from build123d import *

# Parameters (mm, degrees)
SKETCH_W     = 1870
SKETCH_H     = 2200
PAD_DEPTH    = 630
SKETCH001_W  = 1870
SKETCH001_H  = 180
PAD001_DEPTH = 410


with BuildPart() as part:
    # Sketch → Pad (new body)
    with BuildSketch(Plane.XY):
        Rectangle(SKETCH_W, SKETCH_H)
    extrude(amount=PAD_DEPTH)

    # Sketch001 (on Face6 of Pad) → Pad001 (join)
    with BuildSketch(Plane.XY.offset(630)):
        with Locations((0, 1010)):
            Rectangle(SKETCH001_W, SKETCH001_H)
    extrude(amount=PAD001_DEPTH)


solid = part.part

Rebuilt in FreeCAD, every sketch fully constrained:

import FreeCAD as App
import Part
import Sketcher
from FreeCAD import Vector
Q = App.Units.Quantity


def add_polygon(sketch, points):
    """Adds a closed chain of lines whose ends are joined by coincident constraints."""
    first, n = sketch.GeometryCount, len(points)
    for a, b in zip(points, points[1:] + points[:1]):
        sketch.addGeometry(Part.LineSegment(App.Vector(*a, 0), App.Vector(*b, 0)), False)
    for i in range(n):
        sketch.addConstraint(Sketcher.Constraint("Coincident", first + i, 2, first + (i + 1) % n, 1))

doc = App.newDocument("Part")
body = doc.addObject("PartDesign::Body", "Body")

# Sketch on XY plane
sketch1 = body.newObject("Sketcher::SketchObject", "Sketch")
sketch1.AttachmentSupport = (doc.getObject("XY_Plane"), [""])
sketch1.MapMode = "FlatFace"
add_polygon(sketch1, [(-935, 1100), (-935, -1100), (935, -1100), (935, 1100)])  # lines 0-3
sketch1.addConstraint(Sketcher.Constraint("Vertical", 0))
sketch1.addConstraint(Sketcher.Constraint("Horizontal", 1))
sketch1.addConstraint(Sketcher.Constraint("Vertical", 2))
sketch1.addConstraint(Sketcher.Constraint("Horizontal", 3))
sketch1.addConstraint(Sketcher.Constraint("Symmetric", 0, 2, 2, 2, -1, 1))
sketch1.addConstraint(Sketcher.Constraint("DistanceX", 1, 1, 1, 2, Q("1870 mm")))
sketch1.addConstraint(Sketcher.Constraint("DistanceY", 0, 2, 0, 1, Q("2200 mm")))
pad1 = body.newObject("PartDesign::Pad", "Pad")
pad1.Profile = sketch1
pad1.Length = 630

# Sketch on XY plane
sketch2 = body.newObject("Sketcher::SketchObject", "Sketch001")
sketch2.AttachmentSupport = (doc.getObject("XY_Plane"), [""])
sketch2.MapMode = "FlatFace"
sketch2.AttachmentOffset = App.Placement(Vector(0, 0, 630), App.Rotation())
add_polygon(sketch2, [(-935, 1100), (-935, 920), (935, 920), (935, 1100)])  # lines 0-3
sketch2.addConstraint(Sketcher.Constraint("Vertical", 0))
sketch2.addConstraint(Sketcher.Constraint("Horizontal", 1))
sketch2.addConstraint(Sketcher.Constraint("Vertical", 2))
sketch2.addConstraint(Sketcher.Constraint("Horizontal", 3))
sketch2.addConstraint(Sketcher.Constraint("DistanceX", 1, 1, 1, 2, Q("1870 mm")))
sketch2.addConstraint(Sketcher.Constraint("DistanceY", 0, 2, 0, 1, Q("180 mm")))
sketch2.addConstraint(Sketcher.Constraint("DistanceX", 0, 2, -1, 1, Q("935 mm")))
sketch2.addConstraint(Sketcher.Constraint("DistanceY", -1, 1, 0, 2, Q("920 mm")))
pad2 = body.newObject("PartDesign::Pad", "Pad001")
pad2.Profile = sketch2
pad2.Length = 410

doc.recompute()
